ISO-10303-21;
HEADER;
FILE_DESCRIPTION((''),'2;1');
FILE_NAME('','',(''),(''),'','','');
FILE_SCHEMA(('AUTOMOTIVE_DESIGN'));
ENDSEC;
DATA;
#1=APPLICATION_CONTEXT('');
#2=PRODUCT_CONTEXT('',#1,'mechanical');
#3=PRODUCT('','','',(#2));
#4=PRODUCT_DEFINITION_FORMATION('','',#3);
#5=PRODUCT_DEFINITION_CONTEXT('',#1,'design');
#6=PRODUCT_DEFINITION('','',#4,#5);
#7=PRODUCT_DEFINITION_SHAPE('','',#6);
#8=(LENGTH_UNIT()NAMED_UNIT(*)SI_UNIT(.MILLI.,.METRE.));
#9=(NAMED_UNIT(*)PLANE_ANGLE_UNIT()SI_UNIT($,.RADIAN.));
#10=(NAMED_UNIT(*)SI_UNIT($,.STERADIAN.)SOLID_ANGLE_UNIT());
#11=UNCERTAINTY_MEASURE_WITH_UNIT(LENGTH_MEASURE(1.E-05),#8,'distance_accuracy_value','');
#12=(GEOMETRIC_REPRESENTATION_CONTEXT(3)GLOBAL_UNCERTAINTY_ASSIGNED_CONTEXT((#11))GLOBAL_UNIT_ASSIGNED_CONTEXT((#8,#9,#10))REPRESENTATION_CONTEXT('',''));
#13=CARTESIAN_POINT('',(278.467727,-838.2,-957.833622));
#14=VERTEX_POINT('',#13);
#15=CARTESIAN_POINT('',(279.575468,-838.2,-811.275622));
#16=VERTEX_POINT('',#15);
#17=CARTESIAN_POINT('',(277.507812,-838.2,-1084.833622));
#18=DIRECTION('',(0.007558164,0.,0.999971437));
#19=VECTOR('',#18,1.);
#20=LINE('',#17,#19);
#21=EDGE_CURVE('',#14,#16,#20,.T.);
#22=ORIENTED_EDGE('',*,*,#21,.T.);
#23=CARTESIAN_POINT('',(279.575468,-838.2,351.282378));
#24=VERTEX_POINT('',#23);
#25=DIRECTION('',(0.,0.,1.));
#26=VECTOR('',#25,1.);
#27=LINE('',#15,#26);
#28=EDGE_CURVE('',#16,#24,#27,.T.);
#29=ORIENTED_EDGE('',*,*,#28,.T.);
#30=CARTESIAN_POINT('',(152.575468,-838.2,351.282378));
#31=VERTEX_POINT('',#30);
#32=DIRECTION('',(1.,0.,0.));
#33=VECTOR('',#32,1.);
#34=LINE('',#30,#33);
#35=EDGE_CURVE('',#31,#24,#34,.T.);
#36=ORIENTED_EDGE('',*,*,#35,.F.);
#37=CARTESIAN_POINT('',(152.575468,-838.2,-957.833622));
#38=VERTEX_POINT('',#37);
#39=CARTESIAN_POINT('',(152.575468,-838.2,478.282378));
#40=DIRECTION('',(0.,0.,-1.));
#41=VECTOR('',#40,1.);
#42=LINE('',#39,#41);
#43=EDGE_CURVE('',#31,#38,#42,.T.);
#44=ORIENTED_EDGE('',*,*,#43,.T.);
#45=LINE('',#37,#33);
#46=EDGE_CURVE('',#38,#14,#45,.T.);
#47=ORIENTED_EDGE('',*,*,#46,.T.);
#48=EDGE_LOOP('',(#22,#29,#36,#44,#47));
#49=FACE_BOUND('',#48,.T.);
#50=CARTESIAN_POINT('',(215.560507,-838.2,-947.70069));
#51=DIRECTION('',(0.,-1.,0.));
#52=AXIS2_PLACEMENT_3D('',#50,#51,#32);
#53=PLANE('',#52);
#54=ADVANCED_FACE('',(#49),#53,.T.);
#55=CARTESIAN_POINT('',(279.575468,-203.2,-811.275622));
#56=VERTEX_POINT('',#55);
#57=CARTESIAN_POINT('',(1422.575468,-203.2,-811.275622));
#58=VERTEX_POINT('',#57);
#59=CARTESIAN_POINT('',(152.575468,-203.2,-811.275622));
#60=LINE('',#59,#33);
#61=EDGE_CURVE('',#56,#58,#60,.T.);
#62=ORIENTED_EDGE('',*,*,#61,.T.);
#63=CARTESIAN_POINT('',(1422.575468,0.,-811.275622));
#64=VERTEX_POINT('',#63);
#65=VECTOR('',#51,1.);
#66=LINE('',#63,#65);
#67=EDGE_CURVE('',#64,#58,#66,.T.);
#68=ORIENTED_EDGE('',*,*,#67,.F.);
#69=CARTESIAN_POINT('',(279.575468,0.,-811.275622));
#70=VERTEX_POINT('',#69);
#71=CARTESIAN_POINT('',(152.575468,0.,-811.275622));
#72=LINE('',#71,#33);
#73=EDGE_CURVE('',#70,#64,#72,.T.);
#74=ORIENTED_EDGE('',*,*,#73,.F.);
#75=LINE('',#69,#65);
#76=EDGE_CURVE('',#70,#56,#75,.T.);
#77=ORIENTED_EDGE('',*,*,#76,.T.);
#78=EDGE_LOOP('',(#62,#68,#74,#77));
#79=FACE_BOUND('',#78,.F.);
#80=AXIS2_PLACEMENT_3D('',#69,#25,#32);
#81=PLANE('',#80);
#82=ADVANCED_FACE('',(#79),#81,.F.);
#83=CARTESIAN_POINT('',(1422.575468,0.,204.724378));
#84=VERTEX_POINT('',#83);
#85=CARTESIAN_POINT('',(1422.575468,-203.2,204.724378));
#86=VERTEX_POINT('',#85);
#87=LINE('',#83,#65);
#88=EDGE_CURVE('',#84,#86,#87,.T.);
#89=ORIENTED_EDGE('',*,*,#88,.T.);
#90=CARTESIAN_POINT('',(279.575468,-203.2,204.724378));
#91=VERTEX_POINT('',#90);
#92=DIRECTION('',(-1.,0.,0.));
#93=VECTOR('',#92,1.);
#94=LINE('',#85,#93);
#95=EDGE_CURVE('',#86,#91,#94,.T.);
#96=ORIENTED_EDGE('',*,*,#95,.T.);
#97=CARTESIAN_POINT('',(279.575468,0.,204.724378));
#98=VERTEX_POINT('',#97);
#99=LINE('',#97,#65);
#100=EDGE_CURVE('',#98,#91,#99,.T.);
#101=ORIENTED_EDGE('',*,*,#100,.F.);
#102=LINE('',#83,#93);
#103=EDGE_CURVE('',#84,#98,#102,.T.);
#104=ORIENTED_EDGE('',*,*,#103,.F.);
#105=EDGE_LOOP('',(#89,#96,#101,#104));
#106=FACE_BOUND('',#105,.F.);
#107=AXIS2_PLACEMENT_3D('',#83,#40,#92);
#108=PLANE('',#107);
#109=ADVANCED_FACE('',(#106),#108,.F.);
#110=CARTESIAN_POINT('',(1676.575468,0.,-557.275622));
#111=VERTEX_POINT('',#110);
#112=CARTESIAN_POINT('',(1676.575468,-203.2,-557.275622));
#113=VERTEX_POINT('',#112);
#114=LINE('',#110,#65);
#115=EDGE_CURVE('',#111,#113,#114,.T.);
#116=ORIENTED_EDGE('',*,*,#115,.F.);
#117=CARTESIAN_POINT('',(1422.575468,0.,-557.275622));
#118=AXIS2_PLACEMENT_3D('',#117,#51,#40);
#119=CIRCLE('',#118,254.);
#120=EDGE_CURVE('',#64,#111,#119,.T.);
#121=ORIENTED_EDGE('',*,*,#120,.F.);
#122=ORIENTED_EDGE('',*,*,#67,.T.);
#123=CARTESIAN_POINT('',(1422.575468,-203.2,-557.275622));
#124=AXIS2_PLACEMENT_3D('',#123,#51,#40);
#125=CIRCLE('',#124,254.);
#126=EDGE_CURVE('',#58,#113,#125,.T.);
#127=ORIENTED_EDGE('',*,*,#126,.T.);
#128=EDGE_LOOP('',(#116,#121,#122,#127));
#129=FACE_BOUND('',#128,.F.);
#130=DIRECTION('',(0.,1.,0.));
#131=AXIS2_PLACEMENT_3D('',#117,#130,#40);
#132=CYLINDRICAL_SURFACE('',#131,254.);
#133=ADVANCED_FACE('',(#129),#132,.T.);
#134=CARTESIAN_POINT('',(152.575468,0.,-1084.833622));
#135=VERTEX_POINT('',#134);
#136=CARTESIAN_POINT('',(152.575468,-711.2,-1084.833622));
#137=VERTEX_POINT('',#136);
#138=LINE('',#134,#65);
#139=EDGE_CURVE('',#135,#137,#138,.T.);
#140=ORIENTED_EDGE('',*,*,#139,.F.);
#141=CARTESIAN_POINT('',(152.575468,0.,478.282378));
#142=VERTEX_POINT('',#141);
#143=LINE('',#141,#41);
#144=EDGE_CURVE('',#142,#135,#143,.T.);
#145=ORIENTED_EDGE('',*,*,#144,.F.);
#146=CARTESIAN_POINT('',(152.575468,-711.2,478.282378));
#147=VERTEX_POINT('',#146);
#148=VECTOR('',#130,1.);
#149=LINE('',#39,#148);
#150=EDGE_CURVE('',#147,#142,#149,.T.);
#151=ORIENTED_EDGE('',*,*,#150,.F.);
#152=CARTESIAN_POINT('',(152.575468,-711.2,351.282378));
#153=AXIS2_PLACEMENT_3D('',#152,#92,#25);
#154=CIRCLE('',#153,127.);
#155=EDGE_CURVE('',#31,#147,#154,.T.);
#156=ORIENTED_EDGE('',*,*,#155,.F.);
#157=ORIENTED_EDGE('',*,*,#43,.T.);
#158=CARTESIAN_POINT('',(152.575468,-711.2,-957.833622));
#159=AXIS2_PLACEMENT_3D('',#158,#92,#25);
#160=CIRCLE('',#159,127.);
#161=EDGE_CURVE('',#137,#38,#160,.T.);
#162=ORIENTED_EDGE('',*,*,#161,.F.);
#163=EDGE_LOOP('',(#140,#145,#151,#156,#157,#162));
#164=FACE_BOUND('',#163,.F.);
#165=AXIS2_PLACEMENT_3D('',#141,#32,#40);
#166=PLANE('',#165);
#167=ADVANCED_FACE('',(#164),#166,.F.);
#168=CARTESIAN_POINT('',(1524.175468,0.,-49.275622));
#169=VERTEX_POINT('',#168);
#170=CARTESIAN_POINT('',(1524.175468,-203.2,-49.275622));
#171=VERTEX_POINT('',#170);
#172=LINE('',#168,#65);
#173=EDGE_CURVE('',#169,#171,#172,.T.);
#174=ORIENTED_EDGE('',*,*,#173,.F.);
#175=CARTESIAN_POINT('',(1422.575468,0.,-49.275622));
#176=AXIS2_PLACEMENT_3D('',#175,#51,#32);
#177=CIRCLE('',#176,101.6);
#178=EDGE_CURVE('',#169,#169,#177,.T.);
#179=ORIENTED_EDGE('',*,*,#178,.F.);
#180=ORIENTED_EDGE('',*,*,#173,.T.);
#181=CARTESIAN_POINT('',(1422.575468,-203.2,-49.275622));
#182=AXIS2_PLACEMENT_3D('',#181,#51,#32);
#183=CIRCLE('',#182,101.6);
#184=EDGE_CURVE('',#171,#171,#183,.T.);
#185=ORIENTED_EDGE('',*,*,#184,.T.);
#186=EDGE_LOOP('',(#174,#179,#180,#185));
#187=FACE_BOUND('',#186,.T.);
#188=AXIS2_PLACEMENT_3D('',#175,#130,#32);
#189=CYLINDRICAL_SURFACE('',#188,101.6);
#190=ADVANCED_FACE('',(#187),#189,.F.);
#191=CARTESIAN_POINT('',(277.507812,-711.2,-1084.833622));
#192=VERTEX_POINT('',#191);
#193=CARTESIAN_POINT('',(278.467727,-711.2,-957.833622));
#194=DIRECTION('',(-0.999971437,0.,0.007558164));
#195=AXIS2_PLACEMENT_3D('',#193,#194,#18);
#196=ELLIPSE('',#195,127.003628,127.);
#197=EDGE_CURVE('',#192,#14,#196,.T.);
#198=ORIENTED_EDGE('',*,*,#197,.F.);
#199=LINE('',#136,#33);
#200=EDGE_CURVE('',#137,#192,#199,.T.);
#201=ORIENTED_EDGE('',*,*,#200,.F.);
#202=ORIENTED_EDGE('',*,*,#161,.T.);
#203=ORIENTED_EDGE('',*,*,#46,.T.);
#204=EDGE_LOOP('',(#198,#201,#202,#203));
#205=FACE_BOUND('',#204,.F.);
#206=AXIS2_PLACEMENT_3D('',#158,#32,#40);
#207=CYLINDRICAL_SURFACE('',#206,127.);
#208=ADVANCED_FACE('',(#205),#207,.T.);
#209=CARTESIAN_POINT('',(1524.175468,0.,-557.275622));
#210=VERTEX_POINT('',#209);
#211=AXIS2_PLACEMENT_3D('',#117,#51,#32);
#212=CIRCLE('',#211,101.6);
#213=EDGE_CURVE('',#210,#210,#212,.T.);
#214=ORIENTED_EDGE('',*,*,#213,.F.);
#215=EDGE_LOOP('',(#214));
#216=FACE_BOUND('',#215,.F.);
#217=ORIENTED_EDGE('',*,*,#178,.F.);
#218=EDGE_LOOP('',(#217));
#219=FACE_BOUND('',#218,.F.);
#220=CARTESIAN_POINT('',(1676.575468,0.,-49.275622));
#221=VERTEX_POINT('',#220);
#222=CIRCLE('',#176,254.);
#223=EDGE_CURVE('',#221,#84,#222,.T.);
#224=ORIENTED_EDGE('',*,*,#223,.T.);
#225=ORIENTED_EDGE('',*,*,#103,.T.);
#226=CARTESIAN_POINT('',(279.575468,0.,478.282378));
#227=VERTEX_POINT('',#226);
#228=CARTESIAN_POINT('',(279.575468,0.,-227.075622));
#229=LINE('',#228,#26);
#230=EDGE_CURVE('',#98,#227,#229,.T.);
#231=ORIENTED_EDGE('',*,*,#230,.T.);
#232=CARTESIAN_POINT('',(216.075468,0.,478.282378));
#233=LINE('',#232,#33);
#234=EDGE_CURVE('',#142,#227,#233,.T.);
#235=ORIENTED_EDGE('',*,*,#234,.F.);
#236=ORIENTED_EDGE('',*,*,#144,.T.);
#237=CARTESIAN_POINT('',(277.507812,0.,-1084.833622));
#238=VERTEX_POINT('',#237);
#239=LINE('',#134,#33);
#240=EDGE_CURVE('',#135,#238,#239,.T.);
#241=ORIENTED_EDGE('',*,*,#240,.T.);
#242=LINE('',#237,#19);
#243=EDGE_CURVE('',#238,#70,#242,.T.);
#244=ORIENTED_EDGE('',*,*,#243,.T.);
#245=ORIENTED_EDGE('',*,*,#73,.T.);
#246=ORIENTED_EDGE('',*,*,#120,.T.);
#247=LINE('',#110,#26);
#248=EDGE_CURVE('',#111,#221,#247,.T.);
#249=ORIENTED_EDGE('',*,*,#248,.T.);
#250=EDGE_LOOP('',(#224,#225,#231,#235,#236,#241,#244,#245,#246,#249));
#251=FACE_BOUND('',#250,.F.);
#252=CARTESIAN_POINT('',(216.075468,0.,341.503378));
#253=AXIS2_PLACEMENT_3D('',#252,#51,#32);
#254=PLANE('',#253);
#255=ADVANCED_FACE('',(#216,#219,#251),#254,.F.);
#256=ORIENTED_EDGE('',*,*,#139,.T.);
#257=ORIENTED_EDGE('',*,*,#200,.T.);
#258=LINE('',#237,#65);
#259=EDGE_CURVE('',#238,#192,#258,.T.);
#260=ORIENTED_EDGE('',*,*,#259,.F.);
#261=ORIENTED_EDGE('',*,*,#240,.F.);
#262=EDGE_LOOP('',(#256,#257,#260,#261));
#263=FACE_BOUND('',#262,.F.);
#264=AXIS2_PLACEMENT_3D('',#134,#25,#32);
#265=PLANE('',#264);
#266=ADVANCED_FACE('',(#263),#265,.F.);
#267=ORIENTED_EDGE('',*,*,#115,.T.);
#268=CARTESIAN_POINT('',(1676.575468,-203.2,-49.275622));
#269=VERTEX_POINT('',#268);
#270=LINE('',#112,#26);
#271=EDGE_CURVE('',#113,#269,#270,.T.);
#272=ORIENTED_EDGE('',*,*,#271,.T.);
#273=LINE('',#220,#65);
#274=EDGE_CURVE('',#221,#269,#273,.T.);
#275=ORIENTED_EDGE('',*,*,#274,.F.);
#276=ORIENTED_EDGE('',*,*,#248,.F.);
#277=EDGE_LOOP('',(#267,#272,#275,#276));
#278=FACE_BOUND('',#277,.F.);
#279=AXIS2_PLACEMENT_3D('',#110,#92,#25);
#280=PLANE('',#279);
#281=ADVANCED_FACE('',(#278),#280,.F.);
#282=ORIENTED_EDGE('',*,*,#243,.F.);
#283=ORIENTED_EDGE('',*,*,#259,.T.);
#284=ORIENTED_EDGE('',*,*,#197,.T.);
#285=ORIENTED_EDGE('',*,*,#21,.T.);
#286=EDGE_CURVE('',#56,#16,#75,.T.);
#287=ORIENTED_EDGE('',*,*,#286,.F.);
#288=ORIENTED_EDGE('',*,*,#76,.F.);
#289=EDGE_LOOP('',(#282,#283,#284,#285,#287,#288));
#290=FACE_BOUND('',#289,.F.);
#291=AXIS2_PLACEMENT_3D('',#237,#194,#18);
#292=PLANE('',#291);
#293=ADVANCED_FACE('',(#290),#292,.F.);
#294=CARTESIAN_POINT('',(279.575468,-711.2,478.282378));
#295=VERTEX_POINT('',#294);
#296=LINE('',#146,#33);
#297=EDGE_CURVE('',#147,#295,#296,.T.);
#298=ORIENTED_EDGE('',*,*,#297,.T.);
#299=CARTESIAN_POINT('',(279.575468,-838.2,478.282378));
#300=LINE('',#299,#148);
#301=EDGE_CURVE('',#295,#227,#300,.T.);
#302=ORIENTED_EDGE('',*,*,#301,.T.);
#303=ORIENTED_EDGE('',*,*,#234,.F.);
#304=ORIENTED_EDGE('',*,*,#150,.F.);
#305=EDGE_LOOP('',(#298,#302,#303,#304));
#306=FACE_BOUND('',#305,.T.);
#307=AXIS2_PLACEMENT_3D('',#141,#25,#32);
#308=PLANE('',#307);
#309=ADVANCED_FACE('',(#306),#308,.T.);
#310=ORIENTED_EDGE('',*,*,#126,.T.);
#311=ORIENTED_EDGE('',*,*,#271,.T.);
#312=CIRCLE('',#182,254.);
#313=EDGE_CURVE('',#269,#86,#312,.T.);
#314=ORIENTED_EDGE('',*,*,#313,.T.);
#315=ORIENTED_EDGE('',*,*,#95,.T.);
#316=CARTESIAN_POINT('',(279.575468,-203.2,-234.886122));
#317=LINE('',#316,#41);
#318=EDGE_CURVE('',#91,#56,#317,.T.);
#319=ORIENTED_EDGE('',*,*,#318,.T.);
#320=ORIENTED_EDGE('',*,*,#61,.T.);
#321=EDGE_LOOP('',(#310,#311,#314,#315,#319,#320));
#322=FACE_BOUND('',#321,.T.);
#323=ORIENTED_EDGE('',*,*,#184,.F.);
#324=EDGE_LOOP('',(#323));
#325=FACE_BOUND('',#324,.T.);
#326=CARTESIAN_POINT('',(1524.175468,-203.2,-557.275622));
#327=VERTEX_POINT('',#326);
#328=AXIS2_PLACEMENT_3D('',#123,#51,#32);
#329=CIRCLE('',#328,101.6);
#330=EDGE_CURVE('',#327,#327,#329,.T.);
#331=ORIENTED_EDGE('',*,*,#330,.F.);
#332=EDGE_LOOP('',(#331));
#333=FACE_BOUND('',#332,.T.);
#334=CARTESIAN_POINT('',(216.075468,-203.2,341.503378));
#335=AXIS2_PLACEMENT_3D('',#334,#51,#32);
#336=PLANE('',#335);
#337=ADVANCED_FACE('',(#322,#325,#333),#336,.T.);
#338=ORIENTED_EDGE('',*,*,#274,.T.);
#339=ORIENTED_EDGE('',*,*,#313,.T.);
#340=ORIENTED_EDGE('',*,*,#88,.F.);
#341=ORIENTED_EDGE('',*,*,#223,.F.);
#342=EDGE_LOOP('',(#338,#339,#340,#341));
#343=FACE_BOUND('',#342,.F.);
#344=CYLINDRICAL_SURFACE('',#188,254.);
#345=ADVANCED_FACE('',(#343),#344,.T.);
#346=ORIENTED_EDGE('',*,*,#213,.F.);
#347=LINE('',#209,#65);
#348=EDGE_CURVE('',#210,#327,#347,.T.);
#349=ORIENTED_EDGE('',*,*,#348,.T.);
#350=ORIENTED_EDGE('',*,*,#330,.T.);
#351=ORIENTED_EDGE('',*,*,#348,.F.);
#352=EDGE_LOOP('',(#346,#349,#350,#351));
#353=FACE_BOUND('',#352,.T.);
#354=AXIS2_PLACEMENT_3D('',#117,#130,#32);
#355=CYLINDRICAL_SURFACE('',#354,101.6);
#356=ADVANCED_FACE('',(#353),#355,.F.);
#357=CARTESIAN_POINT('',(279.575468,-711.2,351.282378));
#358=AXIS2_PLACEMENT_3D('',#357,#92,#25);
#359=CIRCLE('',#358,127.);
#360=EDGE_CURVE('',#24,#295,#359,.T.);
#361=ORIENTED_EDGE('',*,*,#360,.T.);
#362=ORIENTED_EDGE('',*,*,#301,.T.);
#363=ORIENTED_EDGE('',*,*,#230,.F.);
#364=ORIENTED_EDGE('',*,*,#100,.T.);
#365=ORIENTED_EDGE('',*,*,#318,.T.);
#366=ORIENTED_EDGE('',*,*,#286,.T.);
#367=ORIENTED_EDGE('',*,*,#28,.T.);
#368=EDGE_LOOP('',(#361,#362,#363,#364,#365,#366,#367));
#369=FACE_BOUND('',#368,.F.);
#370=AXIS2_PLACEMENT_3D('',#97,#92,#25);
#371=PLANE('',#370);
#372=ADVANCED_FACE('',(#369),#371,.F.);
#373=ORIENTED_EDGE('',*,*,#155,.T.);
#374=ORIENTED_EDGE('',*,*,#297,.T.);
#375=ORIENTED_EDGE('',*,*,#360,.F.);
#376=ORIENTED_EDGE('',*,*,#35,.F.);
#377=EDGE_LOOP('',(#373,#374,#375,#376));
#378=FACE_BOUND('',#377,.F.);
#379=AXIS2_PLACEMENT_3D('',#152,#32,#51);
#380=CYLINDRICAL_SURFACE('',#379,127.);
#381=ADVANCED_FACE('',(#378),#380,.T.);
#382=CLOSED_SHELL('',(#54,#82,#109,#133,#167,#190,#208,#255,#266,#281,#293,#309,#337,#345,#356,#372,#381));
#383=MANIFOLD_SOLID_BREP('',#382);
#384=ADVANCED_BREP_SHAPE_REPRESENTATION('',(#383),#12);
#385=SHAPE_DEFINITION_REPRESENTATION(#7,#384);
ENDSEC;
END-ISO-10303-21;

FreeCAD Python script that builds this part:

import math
import FreeCAD as App
import Part
import Sketcher
from FreeCAD import Vector
Q = App.Units.Quantity


def edges_at(feature, points):
    """Names of the edges that pass closest to the given points."""
    edges = feature.Shape.Edges
    near = lambda p: min(range(len(edges)), key=lambda i: edges[i].distToShape(Part.Vertex(*p))[0])
    return sorted({f"Edge{near(p) + 1}" for p in points})


def add_polygon(sketch, points):
    """Adds a closed chain of lines whose ends are joined by coincident constraints."""
    first, n = sketch.GeometryCount, len(points)
    for a, b in zip(points, points[1:] + points[:1]):
        sketch.addGeometry(Part.LineSegment(App.Vector(*a, 0), App.Vector(*b, 0)), False)
    for i in range(n):
        sketch.addConstraint(Sketcher.Constraint("Coincident", first + i, 2, first + (i + 1) % n, 1))

doc = App.newDocument("Part")
params = doc.addObject("Spreadsheet::Sheet", "Params")
for row, (alias, value) in enumerate([
    ("sketch1_diameter", "8 in"),
    ("sketch1_radius", "10 in"),
    ("sketch1_width", "45 in"),
    ("sketch1_width2", "5 in"),
    ("sketch1_height", "20 in"),
    ("pad1_length", "8 in"),
    ("sketch2_width", "5 in"),
    ("sketch2_height", "50.77 in"),
    ("sketch2_height2", "61.54 in"),
    ("pad2_length", "33 in"),
    ("fillet_radius", "5 in"),
], start=1):
    params.set(f"A{row}", alias)
    params.set(f"B{row}", "=" + value)
    params.setAlias(f"B{row}", alias)

body = doc.addObject("PartDesign::Body", "Body")

# Sketch on XZ plane
sketch1 = body.newObject("Sketcher::SketchObject", "Sketch")
sketch1.AttachmentSupport = (doc.getObject("XZ_Plane"), [""])
sketch1.MapMode = "FlatFace"
sketch1.addGeometry(Part.LineSegment(Vector(153, 478, 0), Vector(153, -1085, 0)), False)
sketch1.addGeometry(Part.LineSegment(Vector(153, -1085, 0), Vector(278, -1085, 0)), False)
sketch1.addGeometry(Part.LineSegment(Vector(278, -1085, 0), Vector(280, -811, 0)), False)
sketch1.addGeometry(Part.LineSegment(Vector(280, -811, 0), Vector(1423, -811, 0)), False)
sketch1.addGeometry(Part.ArcOfCircle(Part.Circle(Vector(1423, -557, 0), Vector(0, 0, 1), 254), math.radians(-90), math.radians(0)), False)
sketch1.addGeometry(Part.LineSegment(Vector(1677, -557, 0), Vector(1677, -49, 0)), False)
sketch1.addGeometry(Part.ArcOfCircle(Part.Circle(Vector(1423, -49, 0), Vector(0, 0, 1), 254), math.radians(0), math.radians(90)), False)
sketch1.addGeometry(Part.LineSegment(Vector(1423, 205, 0), Vector(280, 205, 0)), False)
sketch1.addGeometry(Part.LineSegment(Vector(280, 205, 0), Vector(280, 478, 0)), False)
sketch1.addGeometry(Part.LineSegment(Vector(280, 478, 0), Vector(153, 478, 0)), False)
sketch1.addGeometry(Part.Circle(Vector(1423, -557, 0), Vector(0, 0, 1), 102), False)
sketch1.addGeometry(Part.Circle(Vector(1423, -49, 0), Vector(0, 0, 1), 102), False)
sketch1.addConstraint(Sketcher.Constraint("Coincident", 0, 2, 1, 1))
sketch1.addConstraint(Sketcher.Constraint("Coincident", 1, 2, 2, 1))
sketch1.addConstraint(Sketcher.Constraint("Coincident", 2, 2, 3, 1))
sketch1.addConstraint(Sketcher.Constraint("Tangent", 3, 2, 4, 1))
sketch1.addConstraint(Sketcher.Constraint("Tangent", 4, 2, 5, 1))
sketch1.addConstraint(Sketcher.Constraint("Tangent", 5, 2, 6, 1))
sketch1.addConstraint(Sketcher.Constraint("Tangent", 6, 2, 7, 1))
sketch1.addConstraint(Sketcher.Constraint("Coincident", 7, 2, 8, 1))
sketch1.addConstraint(Sketcher.Constraint("Coincident", 8, 2, 9, 1))
sketch1.addConstraint(Sketcher.Constraint("Coincident", 9, 2, 0, 1))
sketch1.addConstraint(Sketcher.Constraint("Vertical", 0))
sketch1.addConstraint(Sketcher.Constraint("Horizontal", 1))
sketch1.addConstraint(Sketcher.Constraint("Horizontal", 3))
sketch1.addConstraint(Sketcher.Constraint("Vertical", 5))
sketch1.addConstraint(Sketcher.Constraint("Horizontal", 7))
sketch1.addConstraint(Sketcher.Constraint("Vertical", 8))
sketch1.addConstraint(Sketcher.Constraint("Horizontal", 9))
sketch1.addConstraint(Sketcher.Constraint("Coincident", 10, 3, 4, 3))
sketch1.addConstraint(Sketcher.Constraint("Coincident", 11, 3, 6, 3))
sketch1.addConstraint(Sketcher.Constraint("Equal", 4, 6))
sketch1.addConstraint(Sketcher.Constraint("Equal", 10, 11))
sketch1.addConstraint(Sketcher.Constraint("Vertical", 2, 2, 7, 2))
sketch1.addConstraint(Sketcher.Constraint("Diameter", 10, Q("8 in")))
sketch1.addConstraint(Sketcher.Constraint("Radius", 4, Q("10 in")))
sketch1.addConstraint(Sketcher.Constraint("DistanceX", 3, 1, 3, 2, Q("45 in")))
sketch1.addConstraint(Sketcher.Constraint("DistanceX", 9, 2, 9, 1, Q("5 in")))
sketch1.addConstraint(Sketcher.Constraint("DistanceY", 5, 1, 5, 2, Q("20 in")))
sketch1.addConstraint(Sketcher.Constraint("DistanceY", 0, 2, 0, 1, Q("61.54 in")))
sketch1.addConstraint(Sketcher.Constraint("DistanceY", 8, 1, 8, 2, Q("10.77 in")))
sketch1.addConstraint(Sketcher.Constraint("DistanceX", 1, 1, 1, 2, Q("124.932345 mm")))
sketch1.addConstraint(Sketcher.Constraint("DistanceY", 4, 3, -1, 1, Q("557.275622 mm")))
sketch1.addConstraint(Sketcher.Constraint("DistanceX", -1, 1, 4, 3, Q("1422.575468 mm")))
sketch1.setExpression("Constraints[22]", "Params.sketch1_diameter")
sketch1.setExpression("Constraints[23]", "Params.sketch1_radius")
sketch1.setExpression("Constraints[24]", "Params.sketch1_width")
sketch1.setExpression("Constraints[25]", "Params.sketch1_width2")
sketch1.setExpression("Constraints[26]", "Params.sketch1_height")
pad1 = body.newObject("PartDesign::Pad", "Pad")
pad1.Profile = sketch1
pad1.setExpression("Length", "Params.pad1_length")

# Sketch on XZ plane
sketch2 = body.newObject("Sketcher::SketchObject", "Sketch001")
sketch2.AttachmentSupport = (doc.getObject("XZ_Plane"), [""])
sketch2.MapMode = "FlatFace"
add_polygon(sketch2, [(153, -1085), (278, -1085), (280, -811), (280, 478), (153, 478)])  # lines 0-4
sketch2.addConstraint(Sketcher.Constraint("Horizontal", 0))
sketch2.addConstraint(Sketcher.Constraint("Vertical", 2))
sketch2.addConstraint(Sketcher.Constraint("Horizontal", 3))
sketch2.addConstraint(Sketcher.Constraint("Vertical", 4))
sketch2.addConstraint(Sketcher.Constraint("DistanceX", 3, 2, 3, 1, Q("5 in")))
sketch2.addConstraint(Sketcher.Constraint("DistanceY", 2, 1, 2, 2, Q("50.77 in")))
sketch2.addConstraint(Sketcher.Constraint("DistanceY", 4, 2, 4, 1, Q("61.54 in")))
sketch2.addConstraint(Sketcher.Constraint("DistanceX", 0, 1, 0, 2, Q("124.932345 mm")))
sketch2.addConstraint(Sketcher.Constraint("DistanceY", 0, 2, -1, 1, Q("1084.833622 mm")))
sketch2.addConstraint(Sketcher.Constraint("DistanceX", -1, 1, 0, 2, Q("277.507812 mm")))
sketch2.setExpression("Constraints[9]", "Params.sketch2_width")
sketch2.setExpression("Constraints[10]", "Params.sketch2_height")
sketch2.setExpression("Constraints[11]", "Params.sketch2_height2")
pad2 = body.newObject("PartDesign::Pad", "Pad001")
pad2.Profile = sketch2
pad2.setExpression("Length", "Params.pad2_length")
doc.recompute()

fillet = body.newObject("PartDesign::Fillet", "Fillet")
fillet.Base = (pad2, edges_at(pad2, [(216.075, -838.2, 478.282), (215.042, -838.2, -1084.834)]))
fillet.setExpression("Radius", "Params.fillet_radius")

doc.recompute()
